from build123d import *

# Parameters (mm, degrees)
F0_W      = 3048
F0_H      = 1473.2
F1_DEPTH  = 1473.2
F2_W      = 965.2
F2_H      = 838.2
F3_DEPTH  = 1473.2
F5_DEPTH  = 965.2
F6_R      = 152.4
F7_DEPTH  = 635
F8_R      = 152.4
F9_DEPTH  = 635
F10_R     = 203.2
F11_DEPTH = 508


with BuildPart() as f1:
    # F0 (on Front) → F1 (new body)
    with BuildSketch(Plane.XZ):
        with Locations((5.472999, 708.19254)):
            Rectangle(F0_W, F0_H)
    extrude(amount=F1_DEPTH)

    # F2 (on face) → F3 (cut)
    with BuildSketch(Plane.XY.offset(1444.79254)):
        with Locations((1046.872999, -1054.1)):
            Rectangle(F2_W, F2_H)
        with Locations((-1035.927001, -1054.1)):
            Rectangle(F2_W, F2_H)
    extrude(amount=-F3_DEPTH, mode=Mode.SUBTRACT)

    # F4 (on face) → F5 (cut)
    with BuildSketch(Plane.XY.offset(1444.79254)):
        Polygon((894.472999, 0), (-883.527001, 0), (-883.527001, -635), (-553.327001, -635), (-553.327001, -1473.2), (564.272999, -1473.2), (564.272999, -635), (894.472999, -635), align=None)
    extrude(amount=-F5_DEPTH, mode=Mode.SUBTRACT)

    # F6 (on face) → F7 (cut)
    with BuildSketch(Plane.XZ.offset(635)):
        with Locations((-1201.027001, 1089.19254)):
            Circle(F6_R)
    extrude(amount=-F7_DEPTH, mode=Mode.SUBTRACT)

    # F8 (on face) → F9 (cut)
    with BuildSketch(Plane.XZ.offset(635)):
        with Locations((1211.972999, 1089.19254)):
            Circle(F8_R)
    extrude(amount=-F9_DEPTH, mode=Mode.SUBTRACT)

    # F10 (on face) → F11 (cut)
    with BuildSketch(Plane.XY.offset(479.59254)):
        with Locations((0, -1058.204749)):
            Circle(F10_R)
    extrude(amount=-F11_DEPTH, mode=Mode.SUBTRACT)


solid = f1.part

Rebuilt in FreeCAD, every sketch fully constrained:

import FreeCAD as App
import Part
import Sketcher
Q = App.Units.Quantity


def add_polygon(sketch, points):
    """Adds a closed chain of lines whose ends are joined by coincident constraints."""
    first, n = sketch.GeometryCount, len(points)
    for a, b in zip(points, points[1:] + points[:1]):
        sketch.addGeometry(Part.LineSegment(App.Vector(*a, 0), App.Vector(*b, 0)), False)
    for i in range(n):
        sketch.addConstraint(Sketcher.Constraint("Coincident", first + i, 2, first + (i + 1) % n, 1))

doc = App.newDocument("Part")
body = doc.addObject("PartDesign::Body", "Body")

# Sketch on XZ plane
sketch1 = body.newObject("Sketcher::SketchObject", "Sketch")
sketch1.AttachmentSupport = (doc.getObject("XZ_Plane"), [""])
sketch1.MapMode = "FlatFace"
add_polygon(sketch1, [(-1518.527001, 1444.79254), (-1518.527001, -28.40746), (1529.472999, -28.40746), (1529.472999, 1444.79254)])  # lines 0-3
sketch1.addConstraint(Sketcher.Constraint("Vertical", 0))
sketch1.addConstraint(Sketcher.Constraint("Horizontal", 1))
sketch1.addConstraint(Sketcher.Constraint("Vertical", 2))
sketch1.addConstraint(Sketcher.Constraint("Horizontal", 3))
sketch1.addConstraint(Sketcher.Constraint("DistanceX", 1, 1, 1, 2, Q("120 in")))
sketch1.addConstraint(Sketcher.Constraint("DistanceY", 0, 2, 0, 1, Q("58 in")))
sketch1.addConstraint(Sketcher.Constraint("DistanceX", 0, 2, -1, 1, 1518.527001))
sketch1.addConstraint(Sketcher.Constraint("DistanceY", 0, 2, -1, 1, 28.40746))
pad1 = body.newObject("PartDesign::Pad", "Pad")
pad1.Profile = sketch1
pad1.Length = Q("58 in")

# Sketch on XY plane
sketch2 = body.newObject("Sketcher::SketchObject", "Sketch001")
sketch2.AttachmentSupport = (doc.getObject("XY_Plane"), [""])
sketch2.MapMode = "FlatFace"
sketch2.AttachmentOffset = App.Placement(App.Vector(0, 0, 1444.79254), App.Rotation())
add_polygon(sketch2, [(564.272999, -635), (564.272999, -1473.2), (1529.472999, -1473.2), (1529.472999, -635)])  # lines 0-3
add_polygon(sketch2, [(-1518.527001, -635), (-1518.527001, -1473.2), (-553.327001, -1473.2), (-553.327001, -635)])  # lines 4-7
sketch2.addConstraint(Sketcher.Constraint("Vertical", 0))
sketch2.addConstraint(Sketcher.Constraint("Horizontal", 1))
sketch2.addConstraint(Sketcher.Constraint("Vertical", 2))
sketch2.addConstraint(Sketcher.Constraint("Horizontal", 3))
sketch2.addConstraint(Sketcher.Constraint("Vertical", 4))
sketch2.addConstraint(Sketcher.Constraint("Horizontal", 5))
sketch2.addConstraint(Sketcher.Constraint("Vertical", 6))
sketch2.addConstraint(Sketcher.Constraint("Horizontal", 7))
sketch2.addConstraint(Sketcher.Constraint("Horizontal", 1, 2, 4, 2))
sketch2.addConstraint(Sketcher.Constraint("Horizontal", 3, 2, 6, 2))
sketch2.addConstraint(Sketcher.Constraint("Equal", 3, 5))
sketch2.addConstraint(Sketcher.Constraint("DistanceX", 1, 1, 1, 2, Q("38 in")))
sketch2.addConstraint(Sketcher.Constraint("DistanceY", 0, 2, 0, 1, Q("33 in")))
sketch2.addConstraint(Sketcher.Constraint("DistanceY", 0, 2, -1, 1, Q("58 in")))
sketch2.addConstraint(Sketcher.Constraint("DistanceX", 4, 2, 0, 2, Q("82 in")))
sketch2.addConstraint(Sketcher.Constraint("DistanceX", -1, 1, 0, 2, 564.272999))
pocket1 = body.newObject("PartDesign::Pocket", "Pocket")
pocket1.Profile = sketch2
pocket1.Length = Q("58 in")

# Sketch on XY plane
sketch3 = body.newObject("Sketcher::SketchObject", "Sketch002")
sketch3.AttachmentSupport = (doc.getObject("XY_Plane"), [""])
sketch3.MapMode = "FlatFace"
sketch3.AttachmentOffset = App.Placement(App.Vector(0, 0, 1444.79254), App.Rotation())
add_polygon(sketch3, [(894.472999, 0), (-883.527001, 0), (-883.527001, -635), (-553.327001, -635), (-553.327001, -1473.2), (564.272999, -1473.2), (564.272999, -635), (894.472999, -635)])  # lines 0-7
sketch3.addConstraint(Sketcher.Constraint("Horizontal", 0))
sketch3.addConstraint(Sketcher.Constraint("Vertical", 1))
sketch3.addConstraint(Sketcher.Constraint("Horizontal", 2))
sketch3.addConstraint(Sketcher.Constraint("Vertical", 3))
sketch3.addConstraint(Sketcher.Constraint("Horizontal", 4))
sketch3.addConstraint(Sketcher.Constraint("Vertical", 5))
sketch3.addConstraint(Sketcher.Constraint("Horizontal", 6))
sketch3.addConstraint(Sketcher.Constraint("Vertical", 7))
sketch3.addConstraint(Sketcher.Constraint("PointOnObject", 0, 2, -1))
sketch3.addConstraint(Sketcher.Constraint("Horizontal", 2, 2, 5, 2))
sketch3.addConstraint(Sketcher.Constraint("Equal", 2, 6))
sketch3.addConstraint(Sketcher.Constraint("DistanceX", 0, 2, 0, 1, Q("70 in")))
sketch3.addConstraint(Sketcher.Constraint("DistanceX", 2, 1, 2, 2, Q("13 in")))
sketch3.addConstraint(Sketcher.Constraint("DistanceY", 1, 2, 1, 1, Q("25 in")))
sketch3.addConstraint(Sketcher.Constraint("DistanceY", 3, 2, 3, 1, Q("33 in")))
sketch3.addConstraint(Sketcher.Constraint("DistanceX", 0, 2, -1, 1, 883.527001))
pocket2 = body.newObject("PartDesign::Pocket", "Pocket001")
pocket2.Profile = sketch3
pocket2.Length = Q("38 in")

# Sketch on XZ plane
sketch4 = body.newObject("Sketcher::SketchObject", "Sketch003")
sketch4.AttachmentSupport = (doc.getObject("XZ_Plane"), [""])
sketch4.MapMode = "FlatFace"
sketch4.AttachmentOffset = App.Placement(App.Vector(0, 0, 25 * 25.4), App.Rotation())
sketch4.addGeometry(Part.Circle(App.Vector(-1201.027001, 1089.19254, 0), App.Vector(0, 0, 1), 152.4), False)
sketch4.addConstraint(Sketcher.Constraint("Diameter", 0, Q("12 in")))
sketch4.addConstraint(Sketcher.Constraint("DistanceX", 0, 3, -1, 1, 1201.027001))
sketch4.addConstraint(Sketcher.Constraint("DistanceY", -1, 1, 0, 3, 1089.19254))
pocket3 = body.newObject("PartDesign::Pocket", "Pocket002")
pocket3.Profile = sketch4
pocket3.Length = Q("25 in")

# Sketch on XZ plane
sketch5 = body.newObject("Sketcher::SketchObject", "Sketch004")
sketch5.AttachmentSupport = (doc.getObject("XZ_Plane"), [""])
sketch5.MapMode = "FlatFace"
sketch5.AttachmentOffset = App.Placement(App.Vector(0, 0, 25 * 25.4), App.Rotation())
sketch5.addGeometry(Part.Circle(App.Vector(1211.972999, 1089.19254, 0), App.Vector(0, 0, 1), 152.4), False)
sketch5.addConstraint(Sketcher.Constraint("Diameter", 0, Q("12 in")))
sketch5.addConstraint(Sketcher.Constraint("DistanceX", -1, 1, 0, 3, 1211.972999))
sketch5.addConstraint(Sketcher.Constraint("DistanceY", -1, 1, 0, 3, 1089.19254))
pocket4 = body.newObject("PartDesign::Pocket", "Pocket003")
pocket4.Profile = sketch5
pocket4.Length = Q("25 in")

# Sketch on XY plane
sketch6 = body.newObject("Sketcher::SketchObject", "Sketch005")
sketch6.AttachmentSupport = (doc.getObject("XY_Plane"), [""])
sketch6.MapMode = "FlatFace"
sketch6.AttachmentOffset = App.Placement(App.Vector(0, 0, 479.59254), App.Rotation())
sketch6.addGeometry(Part.Circle(App.Vector(0, -1058.204749, 0), App.Vector(0, 0, 1), 203.2), False)
sketch6.addConstraint(Sketcher.Constraint("PointOnObject", 0, 3, -2))
sketch6.addConstraint(Sketcher.Constraint("Diameter", 0, Q("16 in")))
sketch6.addConstraint(Sketcher.Constraint("DistanceY", 0, 3, -1, 1, 1058.204749))
pocket5 = body.newObject("PartDesign::Pocket", "Pocket004")
pocket5.Profile = sketch6
pocket5.Length = Q("20 in")

doc.recompute()
